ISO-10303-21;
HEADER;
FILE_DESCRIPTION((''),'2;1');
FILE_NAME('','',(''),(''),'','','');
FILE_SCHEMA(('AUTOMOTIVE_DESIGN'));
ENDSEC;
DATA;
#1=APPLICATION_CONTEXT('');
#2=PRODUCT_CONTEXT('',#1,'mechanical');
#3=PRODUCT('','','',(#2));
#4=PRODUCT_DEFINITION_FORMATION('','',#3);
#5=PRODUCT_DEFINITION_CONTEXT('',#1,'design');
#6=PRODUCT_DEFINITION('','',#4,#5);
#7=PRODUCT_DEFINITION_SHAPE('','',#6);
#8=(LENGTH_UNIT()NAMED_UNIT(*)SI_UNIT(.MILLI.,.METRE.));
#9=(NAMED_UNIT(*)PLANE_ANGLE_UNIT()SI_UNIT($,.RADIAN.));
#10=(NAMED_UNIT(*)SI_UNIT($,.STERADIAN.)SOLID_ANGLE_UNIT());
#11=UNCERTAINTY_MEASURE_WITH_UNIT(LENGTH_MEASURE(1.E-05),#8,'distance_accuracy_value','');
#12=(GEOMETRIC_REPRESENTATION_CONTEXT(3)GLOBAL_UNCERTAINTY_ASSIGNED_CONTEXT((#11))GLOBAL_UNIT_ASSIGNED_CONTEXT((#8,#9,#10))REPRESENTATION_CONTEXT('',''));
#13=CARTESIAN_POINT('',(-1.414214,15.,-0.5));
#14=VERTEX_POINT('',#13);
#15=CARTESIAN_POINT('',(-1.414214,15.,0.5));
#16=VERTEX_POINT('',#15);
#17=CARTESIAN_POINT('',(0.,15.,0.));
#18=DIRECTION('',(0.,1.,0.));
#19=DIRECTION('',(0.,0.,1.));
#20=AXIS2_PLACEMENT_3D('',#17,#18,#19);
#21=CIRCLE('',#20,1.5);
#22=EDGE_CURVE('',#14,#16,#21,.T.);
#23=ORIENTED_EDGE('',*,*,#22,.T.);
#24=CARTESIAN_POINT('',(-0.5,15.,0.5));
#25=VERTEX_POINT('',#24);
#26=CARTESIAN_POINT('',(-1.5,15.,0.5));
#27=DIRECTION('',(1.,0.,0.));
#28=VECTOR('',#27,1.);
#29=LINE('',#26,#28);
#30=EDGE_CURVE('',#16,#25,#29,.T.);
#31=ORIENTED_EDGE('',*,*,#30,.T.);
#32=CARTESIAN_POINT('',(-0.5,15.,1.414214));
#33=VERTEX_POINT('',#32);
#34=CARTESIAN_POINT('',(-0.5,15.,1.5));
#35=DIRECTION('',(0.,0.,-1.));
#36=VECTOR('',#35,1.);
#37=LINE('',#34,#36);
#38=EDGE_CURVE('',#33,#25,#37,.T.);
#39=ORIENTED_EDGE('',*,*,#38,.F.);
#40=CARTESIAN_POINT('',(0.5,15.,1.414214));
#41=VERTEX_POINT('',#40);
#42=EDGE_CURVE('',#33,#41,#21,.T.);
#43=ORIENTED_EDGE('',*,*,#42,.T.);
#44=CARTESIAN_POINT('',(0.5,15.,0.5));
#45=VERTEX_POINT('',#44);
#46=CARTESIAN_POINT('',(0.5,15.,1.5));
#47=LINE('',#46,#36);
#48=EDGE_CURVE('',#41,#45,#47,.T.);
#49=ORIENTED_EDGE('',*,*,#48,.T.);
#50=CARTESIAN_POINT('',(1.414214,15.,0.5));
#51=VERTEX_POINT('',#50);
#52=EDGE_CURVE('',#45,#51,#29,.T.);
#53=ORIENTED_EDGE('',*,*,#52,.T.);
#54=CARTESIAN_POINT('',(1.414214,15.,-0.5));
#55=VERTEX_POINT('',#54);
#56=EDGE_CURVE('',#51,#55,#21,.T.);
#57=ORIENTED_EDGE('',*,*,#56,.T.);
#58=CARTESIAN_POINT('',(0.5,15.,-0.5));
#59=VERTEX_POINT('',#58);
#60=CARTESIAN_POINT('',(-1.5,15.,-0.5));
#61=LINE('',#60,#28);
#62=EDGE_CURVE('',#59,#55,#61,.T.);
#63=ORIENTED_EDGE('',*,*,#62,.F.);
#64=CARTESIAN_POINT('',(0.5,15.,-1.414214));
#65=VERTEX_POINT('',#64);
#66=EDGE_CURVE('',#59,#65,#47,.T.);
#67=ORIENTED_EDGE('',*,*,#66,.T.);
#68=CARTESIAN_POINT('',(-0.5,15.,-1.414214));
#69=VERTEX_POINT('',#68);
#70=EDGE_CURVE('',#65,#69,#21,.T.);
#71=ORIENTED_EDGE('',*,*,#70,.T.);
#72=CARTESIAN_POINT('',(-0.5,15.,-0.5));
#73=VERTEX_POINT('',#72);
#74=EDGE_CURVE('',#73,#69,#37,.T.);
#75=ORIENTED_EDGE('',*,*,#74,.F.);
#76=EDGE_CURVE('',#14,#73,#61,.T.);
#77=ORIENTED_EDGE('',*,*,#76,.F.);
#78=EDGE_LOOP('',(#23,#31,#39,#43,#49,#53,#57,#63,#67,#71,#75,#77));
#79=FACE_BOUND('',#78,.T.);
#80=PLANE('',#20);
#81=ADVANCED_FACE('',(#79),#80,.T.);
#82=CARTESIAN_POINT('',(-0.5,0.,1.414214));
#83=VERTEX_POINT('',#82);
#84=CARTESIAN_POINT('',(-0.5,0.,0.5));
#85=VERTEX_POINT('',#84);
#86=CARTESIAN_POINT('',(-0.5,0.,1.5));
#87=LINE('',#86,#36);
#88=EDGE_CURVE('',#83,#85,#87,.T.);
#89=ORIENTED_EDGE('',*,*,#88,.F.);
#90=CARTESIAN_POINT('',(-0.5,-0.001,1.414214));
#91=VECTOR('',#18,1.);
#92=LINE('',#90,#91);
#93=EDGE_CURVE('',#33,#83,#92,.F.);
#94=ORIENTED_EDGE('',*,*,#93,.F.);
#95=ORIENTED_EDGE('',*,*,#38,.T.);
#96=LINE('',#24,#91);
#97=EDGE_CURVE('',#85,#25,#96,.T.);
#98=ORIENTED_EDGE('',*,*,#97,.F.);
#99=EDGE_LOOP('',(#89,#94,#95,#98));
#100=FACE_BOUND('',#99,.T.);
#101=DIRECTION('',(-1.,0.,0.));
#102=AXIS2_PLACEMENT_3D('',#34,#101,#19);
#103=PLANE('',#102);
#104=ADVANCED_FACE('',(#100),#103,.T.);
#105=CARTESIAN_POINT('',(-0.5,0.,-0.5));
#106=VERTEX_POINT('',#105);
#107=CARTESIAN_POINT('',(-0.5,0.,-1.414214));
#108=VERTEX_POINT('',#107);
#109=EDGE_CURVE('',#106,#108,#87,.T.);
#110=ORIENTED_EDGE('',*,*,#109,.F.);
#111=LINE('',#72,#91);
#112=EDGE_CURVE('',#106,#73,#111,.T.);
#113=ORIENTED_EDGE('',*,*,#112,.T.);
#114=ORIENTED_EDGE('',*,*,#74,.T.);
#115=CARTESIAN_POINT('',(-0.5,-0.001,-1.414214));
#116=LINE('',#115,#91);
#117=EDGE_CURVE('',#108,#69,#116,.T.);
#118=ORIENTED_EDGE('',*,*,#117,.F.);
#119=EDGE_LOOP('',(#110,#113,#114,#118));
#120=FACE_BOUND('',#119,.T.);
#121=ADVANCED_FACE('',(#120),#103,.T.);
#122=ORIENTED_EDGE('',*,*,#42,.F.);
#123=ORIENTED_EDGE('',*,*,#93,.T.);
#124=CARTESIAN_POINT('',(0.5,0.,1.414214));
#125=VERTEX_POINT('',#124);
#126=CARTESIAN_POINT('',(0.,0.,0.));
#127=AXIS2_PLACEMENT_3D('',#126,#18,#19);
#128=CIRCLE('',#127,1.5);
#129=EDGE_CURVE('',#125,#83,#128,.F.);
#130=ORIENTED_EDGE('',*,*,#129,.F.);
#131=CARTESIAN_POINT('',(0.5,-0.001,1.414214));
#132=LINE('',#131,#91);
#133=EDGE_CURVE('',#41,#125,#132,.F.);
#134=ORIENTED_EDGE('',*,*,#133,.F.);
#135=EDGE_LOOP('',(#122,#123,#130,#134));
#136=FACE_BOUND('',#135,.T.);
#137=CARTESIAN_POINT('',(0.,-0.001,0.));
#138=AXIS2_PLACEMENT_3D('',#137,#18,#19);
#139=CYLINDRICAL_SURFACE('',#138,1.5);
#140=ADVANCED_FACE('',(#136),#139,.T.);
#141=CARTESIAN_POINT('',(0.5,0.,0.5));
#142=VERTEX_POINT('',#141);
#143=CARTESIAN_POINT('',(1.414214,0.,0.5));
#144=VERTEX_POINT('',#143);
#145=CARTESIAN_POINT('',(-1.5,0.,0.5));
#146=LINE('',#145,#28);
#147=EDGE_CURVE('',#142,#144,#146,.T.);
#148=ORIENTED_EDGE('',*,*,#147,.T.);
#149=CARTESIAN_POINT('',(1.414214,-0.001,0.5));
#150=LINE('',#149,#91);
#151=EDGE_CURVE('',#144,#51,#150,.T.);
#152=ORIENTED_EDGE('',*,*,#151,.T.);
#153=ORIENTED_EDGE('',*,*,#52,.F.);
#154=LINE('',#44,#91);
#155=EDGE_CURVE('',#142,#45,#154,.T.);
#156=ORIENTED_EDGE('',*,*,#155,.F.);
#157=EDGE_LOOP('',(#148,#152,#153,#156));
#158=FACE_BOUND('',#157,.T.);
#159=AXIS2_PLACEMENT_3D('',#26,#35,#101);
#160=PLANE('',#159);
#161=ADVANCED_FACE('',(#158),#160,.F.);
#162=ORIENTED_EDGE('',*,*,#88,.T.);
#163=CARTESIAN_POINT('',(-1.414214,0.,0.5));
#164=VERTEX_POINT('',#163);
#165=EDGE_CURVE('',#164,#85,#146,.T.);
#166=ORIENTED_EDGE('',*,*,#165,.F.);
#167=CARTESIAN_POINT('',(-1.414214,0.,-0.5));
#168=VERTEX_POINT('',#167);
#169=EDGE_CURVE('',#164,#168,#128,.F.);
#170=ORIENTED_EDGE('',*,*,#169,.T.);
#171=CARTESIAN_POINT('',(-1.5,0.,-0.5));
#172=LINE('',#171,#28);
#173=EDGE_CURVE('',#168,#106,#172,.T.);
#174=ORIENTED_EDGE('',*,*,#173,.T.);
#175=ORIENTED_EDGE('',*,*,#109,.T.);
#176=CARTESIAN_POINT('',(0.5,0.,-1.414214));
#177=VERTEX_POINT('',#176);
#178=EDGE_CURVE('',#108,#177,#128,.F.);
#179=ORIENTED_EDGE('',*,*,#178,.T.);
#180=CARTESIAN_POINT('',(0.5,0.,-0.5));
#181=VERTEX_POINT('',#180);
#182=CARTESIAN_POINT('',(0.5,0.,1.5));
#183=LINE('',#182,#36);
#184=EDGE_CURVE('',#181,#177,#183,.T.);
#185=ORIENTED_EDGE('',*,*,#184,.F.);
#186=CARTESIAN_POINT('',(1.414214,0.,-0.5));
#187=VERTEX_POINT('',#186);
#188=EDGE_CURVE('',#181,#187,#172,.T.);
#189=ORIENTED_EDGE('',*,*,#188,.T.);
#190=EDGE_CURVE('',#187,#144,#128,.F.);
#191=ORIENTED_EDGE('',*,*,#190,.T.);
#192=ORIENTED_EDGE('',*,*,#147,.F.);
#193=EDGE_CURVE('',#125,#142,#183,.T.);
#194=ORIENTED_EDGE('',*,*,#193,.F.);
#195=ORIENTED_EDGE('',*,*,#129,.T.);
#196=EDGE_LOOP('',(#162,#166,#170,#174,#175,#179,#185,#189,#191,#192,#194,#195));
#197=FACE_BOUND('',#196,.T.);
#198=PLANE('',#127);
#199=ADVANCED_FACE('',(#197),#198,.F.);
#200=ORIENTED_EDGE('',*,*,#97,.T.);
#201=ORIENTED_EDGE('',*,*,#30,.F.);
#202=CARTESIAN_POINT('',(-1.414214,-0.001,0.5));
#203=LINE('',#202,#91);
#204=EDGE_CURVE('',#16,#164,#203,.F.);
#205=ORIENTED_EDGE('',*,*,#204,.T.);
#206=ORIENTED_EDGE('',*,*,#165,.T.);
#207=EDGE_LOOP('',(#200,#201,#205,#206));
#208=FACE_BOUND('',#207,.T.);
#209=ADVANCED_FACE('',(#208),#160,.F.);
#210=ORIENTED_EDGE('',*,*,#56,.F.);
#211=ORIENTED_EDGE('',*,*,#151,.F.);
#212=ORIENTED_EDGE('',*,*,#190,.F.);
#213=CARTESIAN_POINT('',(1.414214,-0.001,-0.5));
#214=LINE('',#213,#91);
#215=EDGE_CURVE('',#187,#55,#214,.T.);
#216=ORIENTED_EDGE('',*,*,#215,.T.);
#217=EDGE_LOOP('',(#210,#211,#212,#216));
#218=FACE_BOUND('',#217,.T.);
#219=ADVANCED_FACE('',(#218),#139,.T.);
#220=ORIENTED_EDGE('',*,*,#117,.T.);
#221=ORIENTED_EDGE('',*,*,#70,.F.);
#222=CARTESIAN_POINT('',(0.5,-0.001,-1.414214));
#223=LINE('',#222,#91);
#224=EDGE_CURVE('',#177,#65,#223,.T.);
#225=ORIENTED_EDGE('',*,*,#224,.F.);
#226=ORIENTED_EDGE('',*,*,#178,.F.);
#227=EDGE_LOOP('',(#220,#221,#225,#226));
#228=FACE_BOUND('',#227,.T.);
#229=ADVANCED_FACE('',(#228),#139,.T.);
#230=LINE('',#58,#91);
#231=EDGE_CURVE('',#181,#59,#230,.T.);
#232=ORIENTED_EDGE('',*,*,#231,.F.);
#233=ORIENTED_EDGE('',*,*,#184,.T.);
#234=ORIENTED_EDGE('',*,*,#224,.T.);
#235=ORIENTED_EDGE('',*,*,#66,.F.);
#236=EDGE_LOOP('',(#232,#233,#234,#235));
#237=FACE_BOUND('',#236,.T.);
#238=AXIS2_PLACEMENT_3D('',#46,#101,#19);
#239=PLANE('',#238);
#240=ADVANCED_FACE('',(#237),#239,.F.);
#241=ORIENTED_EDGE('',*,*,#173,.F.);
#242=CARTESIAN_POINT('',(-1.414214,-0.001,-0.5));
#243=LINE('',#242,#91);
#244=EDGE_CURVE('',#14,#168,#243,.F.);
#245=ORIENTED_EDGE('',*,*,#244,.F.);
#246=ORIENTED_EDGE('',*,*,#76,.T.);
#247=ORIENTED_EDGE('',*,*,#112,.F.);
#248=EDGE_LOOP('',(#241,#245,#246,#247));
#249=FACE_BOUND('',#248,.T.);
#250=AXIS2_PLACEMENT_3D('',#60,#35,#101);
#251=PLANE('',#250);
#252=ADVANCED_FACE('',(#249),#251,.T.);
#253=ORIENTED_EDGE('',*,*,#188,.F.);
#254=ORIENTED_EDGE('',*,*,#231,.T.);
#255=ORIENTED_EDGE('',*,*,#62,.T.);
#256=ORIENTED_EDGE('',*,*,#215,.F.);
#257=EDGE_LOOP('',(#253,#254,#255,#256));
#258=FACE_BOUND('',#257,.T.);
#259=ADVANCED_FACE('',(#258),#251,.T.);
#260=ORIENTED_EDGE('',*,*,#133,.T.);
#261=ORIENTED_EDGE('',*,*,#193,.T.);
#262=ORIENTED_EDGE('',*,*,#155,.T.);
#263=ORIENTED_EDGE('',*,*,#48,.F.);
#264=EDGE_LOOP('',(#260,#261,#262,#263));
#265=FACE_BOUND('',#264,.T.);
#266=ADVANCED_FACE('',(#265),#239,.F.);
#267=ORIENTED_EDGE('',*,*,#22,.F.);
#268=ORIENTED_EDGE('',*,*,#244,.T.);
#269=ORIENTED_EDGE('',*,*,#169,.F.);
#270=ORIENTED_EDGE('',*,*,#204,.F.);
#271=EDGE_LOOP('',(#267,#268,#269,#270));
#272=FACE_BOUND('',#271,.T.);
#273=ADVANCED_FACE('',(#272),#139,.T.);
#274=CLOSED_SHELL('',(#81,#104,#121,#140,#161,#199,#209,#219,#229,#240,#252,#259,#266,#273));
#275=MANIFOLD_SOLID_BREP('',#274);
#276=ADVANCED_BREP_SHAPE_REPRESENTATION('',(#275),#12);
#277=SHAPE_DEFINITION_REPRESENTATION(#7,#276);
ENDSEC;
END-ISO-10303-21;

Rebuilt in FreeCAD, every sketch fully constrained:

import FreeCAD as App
import Part
import Sketcher
Q = App.Units.Quantity


def add_polygon(sketch, points):
    """Adds a closed chain of lines whose ends are joined by coincident constraints."""
    first, n = sketch.GeometryCount, len(points)
    for a, b in zip(points, points[1:] + points[:1]):
        sketch.addGeometry(Part.LineSegment(App.Vector(*a, 0), App.Vector(*b, 0)), False)
    for i in range(n):
        sketch.addConstraint(Sketcher.Constraint("Coincident", first + i, 2, first + (i + 1) % n, 1))

doc = App.newDocument("Part")
body = doc.addObject("PartDesign::Body", "Body")

# Sketch on XZ plane
sketch1 = body.newObject("Sketcher::SketchObject", "Sketch")
sketch1.AttachmentSupport = (doc.getObject("XZ_Plane"), [""])
sketch1.MapMode = "FlatFace"
add_polygon(sketch1, [(-1.5, -0.5), (-1.5, 0.5), (-0.5, 0.5), (-0.5, 1.5), (0.5, 1.5), (0.5, 0.5), (1.5, 0.5), (1.5, -0.5), (0.5, -0.5), (0.5, -1.5), (-0.5, -1.5), (-0.5, -0.5)])  # lines 0-11
sketch1.addConstraint([
    Sketcher.Constraint("Vertical", 0),
    Sketcher.Constraint("Horizontal", 1),
    Sketcher.Constraint("Vertical", 2),
    Sketcher.Constraint("Horizontal", 3),
    Sketcher.Constraint("Vertical", 4),
    Sketcher.Constraint("Horizontal", 5),
    Sketcher.Constraint("Vertical", 6),
    Sketcher.Constraint("Horizontal", 7),
    Sketcher.Constraint("Vertical", 8),
    Sketcher.Constraint("Horizontal", 9),
    Sketcher.Constraint("Vertical", 10),
    Sketcher.Constraint("Horizontal", 11),
    Sketcher.Constraint("Symmetric", 0, 2, 6, 2, -1, 1),
    Sketcher.Constraint("Symmetric", 2, 2, 8, 2, -1, 1),
    Sketcher.Constraint("Symmetric", 4, 2, 10, 2, -1, 1),
    Sketcher.Constraint("Symmetric", 1, 2, 4, 2, -2),
    Sketcher.Constraint("Equal", 1, 3),
    Sketcher.Constraint("Equal", 11, 0),
    Sketcher.Constraint("Equal", 0, 2),
    Sketcher.Constraint("DistanceX", 1, 1, 1, 2, Q("1 mm")),
])
pad1 = body.newObject("PartDesign::Pad", "Pad")
pad1.Profile = sketch1
pad1.Length = 15
pad1.Reversed = True

# Sketch on XZ plane
sketch2 = body.newObject("Sketcher::SketchObject", "Sketch001")
sketch2.AttachmentSupport = (doc.getObject("XZ_Plane"), [""])
sketch2.MapMode = "FlatFace"
sketch2.AttachmentOffset = App.Placement(App.Vector(0, 0, -15), App.Rotation())
add_polygon(sketch2, [(-4.1, -4.1), (-4.1, 4.1), (4.1, 4.1), (4.1, -4.1)])  # lines 0-3
sketch2.addGeometry(Part.Circle(App.Vector(0, 0, 0), App.Vector(0, 0, 1), 1.5), False)  # 4
sketch2.addConstraint([
    Sketcher.Constraint("Vertical", 0),
    Sketcher.Constraint("Horizontal", 1),
    Sketcher.Constraint("Vertical", 2),
    Sketcher.Constraint("Horizontal", 3),
    Sketcher.Constraint("Coincident", 4, 3, -1, 1),
    Sketcher.Constraint("Symmetric", 0, 2, 2, 2, -1, 1),
    Sketcher.Constraint("Equal", 3, 0),
    Sketcher.Constraint("Diameter", 4, Q("3 mm")),
    Sketcher.Constraint("DistanceX", 1, 1, 1, 2, Q("8.118 mm")),
])
pocket1 = body.newObject("PartDesign::Pocket", "Pocket")
pocket1.Profile = sketch2
pocket1.Length = 15
pocket1.Reversed = True

doc.recompute()
